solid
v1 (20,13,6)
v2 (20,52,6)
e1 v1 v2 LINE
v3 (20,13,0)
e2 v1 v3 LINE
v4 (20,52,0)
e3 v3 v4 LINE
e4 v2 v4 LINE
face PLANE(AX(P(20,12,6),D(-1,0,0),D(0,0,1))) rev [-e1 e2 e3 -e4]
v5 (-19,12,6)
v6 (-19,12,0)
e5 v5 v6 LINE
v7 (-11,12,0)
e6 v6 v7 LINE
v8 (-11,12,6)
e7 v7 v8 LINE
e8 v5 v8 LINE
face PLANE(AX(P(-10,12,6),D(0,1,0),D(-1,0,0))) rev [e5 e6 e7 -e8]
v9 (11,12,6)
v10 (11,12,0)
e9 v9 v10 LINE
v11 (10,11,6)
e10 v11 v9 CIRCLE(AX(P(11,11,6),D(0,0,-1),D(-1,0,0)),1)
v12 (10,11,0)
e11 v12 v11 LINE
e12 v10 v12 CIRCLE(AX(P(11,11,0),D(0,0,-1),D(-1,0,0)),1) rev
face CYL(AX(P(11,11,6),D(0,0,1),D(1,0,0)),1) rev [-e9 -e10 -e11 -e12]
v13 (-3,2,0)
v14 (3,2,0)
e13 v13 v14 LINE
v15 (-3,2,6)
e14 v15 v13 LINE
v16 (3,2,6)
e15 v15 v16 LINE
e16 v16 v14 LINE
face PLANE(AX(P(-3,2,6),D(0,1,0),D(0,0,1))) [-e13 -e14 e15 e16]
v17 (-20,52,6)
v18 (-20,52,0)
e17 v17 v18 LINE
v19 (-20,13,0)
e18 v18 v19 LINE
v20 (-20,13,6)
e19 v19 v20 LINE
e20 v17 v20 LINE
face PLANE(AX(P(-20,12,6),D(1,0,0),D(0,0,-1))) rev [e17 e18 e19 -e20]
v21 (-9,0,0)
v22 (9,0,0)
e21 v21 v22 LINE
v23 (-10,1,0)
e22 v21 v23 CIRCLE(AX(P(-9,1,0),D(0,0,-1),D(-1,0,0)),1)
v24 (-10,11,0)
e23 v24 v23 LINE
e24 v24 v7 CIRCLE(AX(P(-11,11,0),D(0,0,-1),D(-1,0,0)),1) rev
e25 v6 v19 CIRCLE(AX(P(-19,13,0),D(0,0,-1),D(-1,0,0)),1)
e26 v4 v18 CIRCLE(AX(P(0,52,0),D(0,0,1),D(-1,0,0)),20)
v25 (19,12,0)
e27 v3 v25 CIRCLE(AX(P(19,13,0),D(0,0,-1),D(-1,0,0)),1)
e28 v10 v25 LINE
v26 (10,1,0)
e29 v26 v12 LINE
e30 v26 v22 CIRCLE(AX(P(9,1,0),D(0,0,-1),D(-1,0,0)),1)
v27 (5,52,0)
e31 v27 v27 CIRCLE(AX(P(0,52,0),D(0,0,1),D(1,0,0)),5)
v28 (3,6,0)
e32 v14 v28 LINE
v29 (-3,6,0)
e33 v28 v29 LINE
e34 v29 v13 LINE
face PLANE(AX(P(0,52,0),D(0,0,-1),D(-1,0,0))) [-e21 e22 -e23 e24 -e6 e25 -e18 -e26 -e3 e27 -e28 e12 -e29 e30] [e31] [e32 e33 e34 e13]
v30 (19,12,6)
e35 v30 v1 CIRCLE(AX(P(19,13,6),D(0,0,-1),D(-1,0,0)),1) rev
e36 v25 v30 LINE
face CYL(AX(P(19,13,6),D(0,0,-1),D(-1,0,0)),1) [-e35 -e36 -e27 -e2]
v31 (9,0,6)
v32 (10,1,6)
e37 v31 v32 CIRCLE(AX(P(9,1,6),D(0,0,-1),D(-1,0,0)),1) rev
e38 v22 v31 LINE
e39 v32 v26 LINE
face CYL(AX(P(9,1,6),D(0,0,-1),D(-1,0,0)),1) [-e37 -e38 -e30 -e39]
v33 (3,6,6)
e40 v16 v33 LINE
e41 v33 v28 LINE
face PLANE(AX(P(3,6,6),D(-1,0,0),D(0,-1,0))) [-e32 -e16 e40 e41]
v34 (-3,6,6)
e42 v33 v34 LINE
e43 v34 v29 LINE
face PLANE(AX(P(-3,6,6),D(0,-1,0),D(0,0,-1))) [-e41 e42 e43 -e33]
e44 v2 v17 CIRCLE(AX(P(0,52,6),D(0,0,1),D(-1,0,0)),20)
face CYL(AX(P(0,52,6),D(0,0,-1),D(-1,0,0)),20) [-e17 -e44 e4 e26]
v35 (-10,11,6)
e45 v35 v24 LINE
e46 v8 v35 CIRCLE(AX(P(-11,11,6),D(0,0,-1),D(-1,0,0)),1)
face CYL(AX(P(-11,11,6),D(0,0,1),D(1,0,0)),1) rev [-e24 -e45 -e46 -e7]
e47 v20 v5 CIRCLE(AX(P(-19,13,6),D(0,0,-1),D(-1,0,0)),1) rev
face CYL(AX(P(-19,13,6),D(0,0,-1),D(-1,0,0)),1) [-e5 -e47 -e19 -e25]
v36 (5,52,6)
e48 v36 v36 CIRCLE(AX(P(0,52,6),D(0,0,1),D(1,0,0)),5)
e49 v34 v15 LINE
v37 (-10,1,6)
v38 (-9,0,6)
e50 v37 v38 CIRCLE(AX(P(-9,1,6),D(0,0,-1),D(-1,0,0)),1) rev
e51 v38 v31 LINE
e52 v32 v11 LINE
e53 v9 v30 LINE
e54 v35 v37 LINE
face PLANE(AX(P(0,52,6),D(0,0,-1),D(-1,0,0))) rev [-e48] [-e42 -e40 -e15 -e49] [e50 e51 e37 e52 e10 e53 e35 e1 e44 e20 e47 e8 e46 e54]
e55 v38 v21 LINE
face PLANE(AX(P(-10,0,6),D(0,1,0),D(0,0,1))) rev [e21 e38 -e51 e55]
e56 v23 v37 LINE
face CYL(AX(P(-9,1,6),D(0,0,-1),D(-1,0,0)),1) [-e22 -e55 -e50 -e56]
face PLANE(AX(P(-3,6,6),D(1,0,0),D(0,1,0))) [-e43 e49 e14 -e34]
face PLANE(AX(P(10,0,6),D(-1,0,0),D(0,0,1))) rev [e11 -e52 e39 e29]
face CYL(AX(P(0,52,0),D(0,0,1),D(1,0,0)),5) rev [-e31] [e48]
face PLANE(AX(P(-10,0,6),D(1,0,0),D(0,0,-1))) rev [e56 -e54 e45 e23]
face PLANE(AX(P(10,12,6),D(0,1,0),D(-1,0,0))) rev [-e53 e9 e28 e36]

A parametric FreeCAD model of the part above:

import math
import FreeCAD as App
import Part
import Sketcher
from FreeCAD import Vector
Q = App.Units.Quantity


def edges_at(feature, points):
    """Names of the edges that pass closest to the given points."""
    edges = feature.Shape.Edges
    near = lambda p: min(range(len(edges)), key=lambda i: edges[i].distToShape(Part.Vertex(*p))[0])
    return sorted({f"Edge{near(p) + 1}" for p in points})


def add_polygon(sketch, points):
    """Adds a closed chain of lines whose ends are joined by coincident constraints."""
    first, n = sketch.GeometryCount, len(points)
    for a, b in zip(points, points[1:] + points[:1]):
        sketch.addGeometry(Part.LineSegment(App.Vector(*a, 0), App.Vector(*b, 0)), False)
    for i in range(n):
        sketch.addConstraint(Sketcher.Constraint("Coincident", first + i, 2, first + (i + 1) % n, 1))

doc = App.newDocument("Part")
params = doc.addObject("Spreadsheet::Sheet", "Params")
for row, (alias, value) in enumerate([
    ("sketch1_radius", "20 mm"),
    ("sketch1_width", "20 mm"),
    ("sketch1_width2", "6 mm"),
    ("sketch1_height", "12 mm"),
    ("sketch1_height2", "40 mm"),
    ("pad1_length", "6 mm"),
    ("fillet_radius", "1 mm"),
    ("sketch2_diameter", "10 mm"),
], start=1):
    params.set(f"A{row}", alias)
    params.set(f"B{row}", "=" + value)
    params.setAlias(f"B{row}", alias)

body = doc.addObject("PartDesign::Body", "Body")

# Sketch on XY plane
sketch1 = body.newObject("Sketcher::SketchObject", "Sketch")
sketch1.AttachmentSupport = (doc.getObject("XY_Plane"), [""])
sketch1.MapMode = "FlatFace"
sketch1.addGeometry(Part.LineSegment(Vector(-10, 0, 0), Vector(10, 0, 0)), False)  # 0
sketch1.addGeometry(Part.LineSegment(Vector(10, 0, 0), Vector(10, 12, 0)), False)  # 1
sketch1.addGeometry(Part.LineSegment(Vector(10, 12, 0), Vector(20, 12, 0)), False)  # 2
sketch1.addGeometry(Part.LineSegment(Vector(20, 12, 0), Vector(20, 52, 0)), False)  # 3
sketch1.addGeometry(Part.ArcOfCircle(Part.Circle(Vector(0, 52, 0), Vector(0, 0, 1), 20), math.radians(0), math.radians(180)), False)  # 4
sketch1.addGeometry(Part.LineSegment(Vector(-20, 52, 0), Vector(-20, 12, 0)), False)  # 5
sketch1.addGeometry(Part.LineSegment(Vector(-20, 12, 0), Vector(-10, 12, 0)), False)  # 6
sketch1.addGeometry(Part.LineSegment(Vector(-10, 12, 0), Vector(-10, 0, 0)), False)  # 7
add_polygon(sketch1, [(3, 2), (-3, 2), (-3, 6), (3, 6)])  # lines 8-11
sketch1.addConstraint([
    Sketcher.Constraint("Coincident", 0, 2, 1, 1),
    Sketcher.Constraint("Coincident", 1, 2, 2, 1),
    Sketcher.Constraint("Coincident", 2, 2, 3, 1),
    Sketcher.Constraint("Tangent", 3, 2, 4, 1),
    Sketcher.Constraint("Tangent", 4, 2, 5, 1),
    Sketcher.Constraint("Coincident", 5, 2, 6, 1),
    Sketcher.Constraint("Coincident", 6, 2, 7, 1),
    Sketcher.Constraint("Coincident", 7, 2, 0, 1),
    Sketcher.Constraint("Horizontal", 0),
    Sketcher.Constraint("Vertical", 1),
    Sketcher.Constraint("Horizontal", 2),
    Sketcher.Constraint("Vertical", 3),
    Sketcher.Constraint("Vertical", 5),
    Sketcher.Constraint("Horizontal", 6),
    Sketcher.Constraint("Vertical", 7),
    Sketcher.Constraint("Horizontal", 8),
    Sketcher.Constraint("Vertical", 9),
    Sketcher.Constraint("Horizontal", 10),
    Sketcher.Constraint("Vertical", 11),
    Sketcher.Constraint("Symmetric", 0, 2, 7, 2, -1, 1),
    Sketcher.Constraint("Symmetric", 2, 2, 5, 2, -2),
    Sketcher.Constraint("Radius", 4, Q("20 mm")),
    Sketcher.Constraint("DistanceX", 0, 1, 0, 2, Q("20 mm")),
    Sketcher.Constraint("DistanceX", 8, 2, 8, 1, Q("6 mm")),
    Sketcher.Constraint("DistanceY", 1, 1, 1, 2, Q("12 mm")),
    Sketcher.Constraint("DistanceY", 3, 1, 3, 2, Q("40 mm")),
    Sketcher.Constraint("DistanceY", 9, 1, 9, 2, Q("4 mm")),
    Sketcher.Constraint("DistanceX", 8, 2, -1, 1, Q("3 mm")),
    Sketcher.Constraint("DistanceY", -1, 1, 8, 2, Q("2 mm")),
])
sketch1.setExpression("Constraints[25]", "Params.sketch1_radius")
sketch1.setExpression("Constraints[26]", "Params.sketch1_width")
sketch1.setExpression("Constraints[27]", "Params.sketch1_width2")
sketch1.setExpression("Constraints[28]", "Params.sketch1_height")
sketch1.setExpression("Constraints[29]", "Params.sketch1_height2")
pad1 = body.newObject("PartDesign::Pad", "Pad")
pad1.Profile = sketch1
pad1.setExpression("Length", "Params.pad1_length")
doc.recompute()

fillet = body.newObject("PartDesign::Fillet", "Fillet")
fillet.Base = (pad1, edges_at(pad1, [
    (10, 0, 3),
    (-10, 0, 3),
    (-10, 12, 3),
    (-20, 12, 3),
    (20, 12, 3),
    (10, 12, 3),
]))
fillet.setExpression("Radius", "Params.fillet_radius")

# Sketch on XY plane
sketch2 = body.newObject("Sketcher::SketchObject", "Sketch001")
sketch2.AttachmentSupport = (doc.getObject("XY_Plane"), [""])
sketch2.MapMode = "FlatFace"
sketch2.AttachmentOffset = App.Placement(Vector(0, 0, 6), App.Rotation())
sketch2.addGeometry(Part.Circle(Vector(0, 52, 0), Vector(0, 0, 1), 5), False)
sketch2.addConstraint([
    Sketcher.Constraint("PointOnObject", 0, 3, -2),
    Sketcher.Constraint("Diameter", 0, Q("10 mm")),
    Sketcher.Constraint("DistanceY", -1, 1, 0, 3, Q("52 mm")),
])
sketch2.setExpression("Constraints[1]", "Params.sketch2_diameter")
pocket1 = body.newObject("PartDesign::Pocket", "Pocket")
pocket1.Profile = sketch2
pocket1.Type = "ThroughAll"

doc.recompute()
